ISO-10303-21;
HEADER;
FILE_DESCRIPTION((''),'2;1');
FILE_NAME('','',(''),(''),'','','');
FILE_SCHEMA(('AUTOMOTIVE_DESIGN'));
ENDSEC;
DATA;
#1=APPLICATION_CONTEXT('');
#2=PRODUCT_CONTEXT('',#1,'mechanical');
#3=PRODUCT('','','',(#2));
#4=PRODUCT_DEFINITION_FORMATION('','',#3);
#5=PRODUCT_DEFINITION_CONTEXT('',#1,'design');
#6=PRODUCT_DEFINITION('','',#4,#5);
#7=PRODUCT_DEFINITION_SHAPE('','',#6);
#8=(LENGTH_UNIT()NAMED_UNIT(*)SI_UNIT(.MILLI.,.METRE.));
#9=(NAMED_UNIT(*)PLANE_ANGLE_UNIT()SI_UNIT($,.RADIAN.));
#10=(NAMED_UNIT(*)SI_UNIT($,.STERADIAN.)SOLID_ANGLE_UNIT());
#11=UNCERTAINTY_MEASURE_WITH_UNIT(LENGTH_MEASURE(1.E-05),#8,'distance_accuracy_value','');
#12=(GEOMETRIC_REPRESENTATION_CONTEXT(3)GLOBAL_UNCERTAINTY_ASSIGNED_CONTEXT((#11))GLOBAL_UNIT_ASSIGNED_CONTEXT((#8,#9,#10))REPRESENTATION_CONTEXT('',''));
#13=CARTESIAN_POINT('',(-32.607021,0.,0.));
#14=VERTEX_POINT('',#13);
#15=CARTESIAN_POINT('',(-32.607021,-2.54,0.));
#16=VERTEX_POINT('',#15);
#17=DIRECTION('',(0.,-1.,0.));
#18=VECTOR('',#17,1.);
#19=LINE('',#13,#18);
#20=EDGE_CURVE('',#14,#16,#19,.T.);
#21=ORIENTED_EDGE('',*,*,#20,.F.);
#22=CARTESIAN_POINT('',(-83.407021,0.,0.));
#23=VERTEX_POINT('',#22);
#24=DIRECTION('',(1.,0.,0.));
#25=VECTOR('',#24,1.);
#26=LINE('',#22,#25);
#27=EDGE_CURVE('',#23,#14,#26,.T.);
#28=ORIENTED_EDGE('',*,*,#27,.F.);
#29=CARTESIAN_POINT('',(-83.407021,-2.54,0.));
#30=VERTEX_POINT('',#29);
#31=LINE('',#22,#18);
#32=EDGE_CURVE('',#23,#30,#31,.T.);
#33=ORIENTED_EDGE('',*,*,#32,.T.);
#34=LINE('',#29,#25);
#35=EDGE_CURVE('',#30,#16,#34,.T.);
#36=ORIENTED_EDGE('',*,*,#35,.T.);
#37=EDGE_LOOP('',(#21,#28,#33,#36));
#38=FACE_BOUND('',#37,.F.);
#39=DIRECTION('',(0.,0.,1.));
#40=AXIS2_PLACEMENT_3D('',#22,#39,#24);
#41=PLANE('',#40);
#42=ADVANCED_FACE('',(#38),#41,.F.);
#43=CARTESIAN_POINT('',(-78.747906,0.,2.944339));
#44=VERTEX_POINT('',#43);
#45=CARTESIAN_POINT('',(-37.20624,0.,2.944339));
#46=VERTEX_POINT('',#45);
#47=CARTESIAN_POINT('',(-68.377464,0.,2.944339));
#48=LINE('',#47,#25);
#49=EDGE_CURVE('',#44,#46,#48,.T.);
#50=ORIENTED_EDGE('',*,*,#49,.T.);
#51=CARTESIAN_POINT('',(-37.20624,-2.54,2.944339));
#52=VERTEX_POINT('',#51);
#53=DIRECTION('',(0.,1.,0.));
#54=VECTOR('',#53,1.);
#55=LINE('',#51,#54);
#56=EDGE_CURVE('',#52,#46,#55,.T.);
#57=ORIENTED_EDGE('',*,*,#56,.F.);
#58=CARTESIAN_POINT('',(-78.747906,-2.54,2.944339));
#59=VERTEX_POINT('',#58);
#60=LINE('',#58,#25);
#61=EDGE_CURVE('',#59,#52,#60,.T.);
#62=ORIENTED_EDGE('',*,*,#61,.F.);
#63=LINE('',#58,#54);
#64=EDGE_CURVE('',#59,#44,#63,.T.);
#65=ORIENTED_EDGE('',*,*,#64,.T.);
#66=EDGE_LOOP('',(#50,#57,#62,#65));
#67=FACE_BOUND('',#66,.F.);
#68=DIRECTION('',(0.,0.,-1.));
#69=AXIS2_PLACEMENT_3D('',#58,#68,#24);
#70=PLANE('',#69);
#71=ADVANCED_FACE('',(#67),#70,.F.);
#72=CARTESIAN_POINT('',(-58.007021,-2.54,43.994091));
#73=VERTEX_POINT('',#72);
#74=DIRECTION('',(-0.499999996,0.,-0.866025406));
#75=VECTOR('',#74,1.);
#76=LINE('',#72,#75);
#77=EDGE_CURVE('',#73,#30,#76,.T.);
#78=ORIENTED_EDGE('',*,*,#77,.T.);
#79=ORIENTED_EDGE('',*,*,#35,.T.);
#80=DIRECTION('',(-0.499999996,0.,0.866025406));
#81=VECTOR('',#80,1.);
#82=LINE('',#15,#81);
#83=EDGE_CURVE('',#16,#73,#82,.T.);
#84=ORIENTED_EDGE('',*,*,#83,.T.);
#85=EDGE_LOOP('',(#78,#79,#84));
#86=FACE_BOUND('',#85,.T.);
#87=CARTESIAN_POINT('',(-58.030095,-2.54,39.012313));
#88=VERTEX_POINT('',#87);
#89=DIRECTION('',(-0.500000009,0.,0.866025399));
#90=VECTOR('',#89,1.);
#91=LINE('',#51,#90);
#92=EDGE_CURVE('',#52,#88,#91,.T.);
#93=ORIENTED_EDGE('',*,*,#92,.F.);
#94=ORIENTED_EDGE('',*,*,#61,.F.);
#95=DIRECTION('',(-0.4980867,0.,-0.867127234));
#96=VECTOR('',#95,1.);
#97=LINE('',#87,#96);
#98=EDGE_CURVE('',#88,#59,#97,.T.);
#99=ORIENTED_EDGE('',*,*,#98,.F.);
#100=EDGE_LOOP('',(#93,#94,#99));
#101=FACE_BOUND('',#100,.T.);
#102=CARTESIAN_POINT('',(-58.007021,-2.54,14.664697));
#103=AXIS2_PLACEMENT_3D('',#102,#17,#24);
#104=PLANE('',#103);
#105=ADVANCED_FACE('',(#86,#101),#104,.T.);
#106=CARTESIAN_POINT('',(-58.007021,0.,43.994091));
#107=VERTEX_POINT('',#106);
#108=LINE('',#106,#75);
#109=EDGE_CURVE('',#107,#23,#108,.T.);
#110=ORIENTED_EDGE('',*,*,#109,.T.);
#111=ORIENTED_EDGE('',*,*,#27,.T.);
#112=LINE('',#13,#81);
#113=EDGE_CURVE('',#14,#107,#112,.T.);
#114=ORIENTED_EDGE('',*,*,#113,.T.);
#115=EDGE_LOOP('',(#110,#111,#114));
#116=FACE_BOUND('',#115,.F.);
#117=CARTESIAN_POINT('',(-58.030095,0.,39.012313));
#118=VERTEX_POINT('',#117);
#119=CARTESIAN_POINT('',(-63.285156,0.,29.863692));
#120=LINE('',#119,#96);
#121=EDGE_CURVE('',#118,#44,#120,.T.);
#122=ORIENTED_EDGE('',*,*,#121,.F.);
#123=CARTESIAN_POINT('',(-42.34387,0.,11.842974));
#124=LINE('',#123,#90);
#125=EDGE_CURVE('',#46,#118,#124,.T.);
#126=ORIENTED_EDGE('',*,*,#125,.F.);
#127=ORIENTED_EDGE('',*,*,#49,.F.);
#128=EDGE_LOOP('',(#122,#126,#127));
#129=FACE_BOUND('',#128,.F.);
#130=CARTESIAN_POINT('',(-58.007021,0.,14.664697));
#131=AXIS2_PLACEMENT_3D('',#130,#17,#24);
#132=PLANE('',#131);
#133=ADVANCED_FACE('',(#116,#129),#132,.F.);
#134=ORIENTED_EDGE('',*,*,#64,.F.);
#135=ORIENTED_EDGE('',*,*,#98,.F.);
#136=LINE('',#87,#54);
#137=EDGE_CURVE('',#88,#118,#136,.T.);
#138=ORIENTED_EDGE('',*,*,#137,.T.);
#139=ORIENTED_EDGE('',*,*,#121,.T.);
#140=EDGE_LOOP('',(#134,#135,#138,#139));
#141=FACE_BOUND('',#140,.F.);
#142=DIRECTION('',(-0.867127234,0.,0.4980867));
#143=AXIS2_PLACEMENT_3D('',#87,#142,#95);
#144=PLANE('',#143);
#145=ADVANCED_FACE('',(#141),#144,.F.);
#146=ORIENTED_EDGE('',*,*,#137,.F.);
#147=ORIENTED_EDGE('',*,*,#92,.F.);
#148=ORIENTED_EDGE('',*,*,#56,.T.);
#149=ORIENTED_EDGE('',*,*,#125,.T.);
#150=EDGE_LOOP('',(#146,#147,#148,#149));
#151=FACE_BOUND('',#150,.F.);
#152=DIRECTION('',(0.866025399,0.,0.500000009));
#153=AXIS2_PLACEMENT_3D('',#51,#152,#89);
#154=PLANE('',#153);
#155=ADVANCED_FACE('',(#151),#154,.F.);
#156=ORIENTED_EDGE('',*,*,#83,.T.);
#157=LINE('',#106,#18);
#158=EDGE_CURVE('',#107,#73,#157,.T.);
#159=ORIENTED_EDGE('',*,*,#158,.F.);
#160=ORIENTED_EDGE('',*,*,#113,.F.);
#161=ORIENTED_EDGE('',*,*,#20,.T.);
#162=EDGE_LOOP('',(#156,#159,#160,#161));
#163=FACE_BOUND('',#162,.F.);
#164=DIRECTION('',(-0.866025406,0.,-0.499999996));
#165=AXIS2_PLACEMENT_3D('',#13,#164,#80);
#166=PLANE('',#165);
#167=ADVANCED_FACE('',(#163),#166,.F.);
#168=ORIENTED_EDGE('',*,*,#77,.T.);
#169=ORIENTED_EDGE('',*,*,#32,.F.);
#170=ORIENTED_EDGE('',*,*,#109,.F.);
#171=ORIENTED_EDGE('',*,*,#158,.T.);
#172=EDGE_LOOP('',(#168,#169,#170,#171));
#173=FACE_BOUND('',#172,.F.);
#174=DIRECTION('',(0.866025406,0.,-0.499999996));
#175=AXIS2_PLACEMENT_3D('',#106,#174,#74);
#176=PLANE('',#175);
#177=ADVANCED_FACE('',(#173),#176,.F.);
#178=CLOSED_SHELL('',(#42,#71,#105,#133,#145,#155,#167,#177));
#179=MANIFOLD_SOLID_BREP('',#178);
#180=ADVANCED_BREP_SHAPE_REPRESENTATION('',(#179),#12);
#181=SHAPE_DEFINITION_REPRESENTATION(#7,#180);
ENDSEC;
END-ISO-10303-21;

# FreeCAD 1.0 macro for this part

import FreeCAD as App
import Part
import Sketcher
Q = App.Units.Quantity

doc = App.newDocument("Part")
params = doc.addObject("Spreadsheet::Sheet", "Params")
for row, (alias, value) in enumerate([
    ("sketch1_width", "2 in"),
    ("sketch1_length", "2 in"),
    ("pad1_length", "0.1 in"),
    ("pocket1_length", "1 in"),
], start=1):
    params.set(f"A{row}", alias)
    params.set(f"B{row}", "=" + value)
    params.setAlias(f"B{row}", alias)

body = doc.addObject("PartDesign::Body", "Body")

sketch1 = body.newObject("Sketcher::SketchObject", "Sketch")
sketch1.AttachmentSupport = (doc.getObject("XZ_Plane"), [""])
sketch1.MapMode = "FlatFace"
sketch1.addGeometry(Part.LineSegment(App.Vector(-58, 44, 0), App.Vector(-83, 0, 0)), False)
sketch1.addGeometry(Part.LineSegment(App.Vector(-83, 0, 0), App.Vector(-33, 0, 0)), False)
sketch1.addGeometry(Part.LineSegment(App.Vector(-33, 0, 0), App.Vector(-58, 44, 0)), False)
sketch1.addConstraint(Sketcher.Constraint("Coincident", 0, 2, 1, 1))
sketch1.addConstraint(Sketcher.Constraint("Coincident", 1, 2, 2, 1))
sketch1.addConstraint(Sketcher.Constraint("Coincident", 2, 2, 0, 1))
sketch1.addConstraint(Sketcher.Constraint("Horizontal", 1))
sketch1.addConstraint(Sketcher.Constraint("PointOnObject", 0, 2, -1))
sketch1.addConstraint(Sketcher.Constraint("Equal", 0, 2))
sketch1.addConstraint(Sketcher.Constraint("DistanceX", 1, 1, 1, 2, Q("2 in")))
sketch1.addConstraint(Sketcher.Constraint("Distance", 0, Q("2 in")))
sketch1.addConstraint(Sketcher.Constraint("DistanceX", 0, 2, -1, 1, Q("83.407021 mm")))
sketch1.setExpression("Constraints[6]", "Params.sketch1_width")
sketch1.setExpression("Constraints[7]", "Params.sketch1_length")
pad1 = body.newObject("PartDesign::Pad", "Pad")
pad1.Profile = sketch1
pad1.setExpression("Length", "Params.pad1_length")

sketch2 = body.newObject("Sketcher::SketchObject", "Sketch001")
sketch2.AttachmentSupport = (doc.getObject("XZ_Plane"), [""])
sketch2.MapMode = "FlatFace"
sketch2.AttachmentOffset = App.Placement(App.Vector(0, 0, 0.1 * 25.4), App.Rotation())
sketch2.addGeometry(Part.LineSegment(App.Vector(-37, 3, 0), App.Vector(-58, 39, 0)), False)
sketch2.addGeometry(Part.LineSegment(App.Vector(-58, 39, 0), App.Vector(-79, 3, 0)), False)
sketch2.addGeometry(Part.LineSegment(App.Vector(-79, 3, 0), App.Vector(-37, 3, 0)), False)
sketch2.addConstraint(Sketcher.Constraint("Coincident", 0, 2, 1, 1))
sketch2.addConstraint(Sketcher.Constraint("Coincident", 1, 2, 2, 1))
sketch2.addConstraint(Sketcher.Constraint("Coincident", 2, 2, 0, 1))
sketch2.addConstraint(Sketcher.Constraint("Horizontal", 2))
sketch2.addConstraint(Sketcher.Constraint("Angle", 0, Q("120.000001 deg")))
sketch2.addConstraint(Sketcher.Constraint("Distance", 0, Q("41.647709 mm")))
sketch2.addConstraint(Sketcher.Constraint("Distance", 1, Q("41.594789 mm")))
sketch2.addConstraint(Sketcher.Constraint("DistanceY", -1, 1, 1, 2, Q("2.944339 mm")))
sketch2.addConstraint(Sketcher.Constraint("DistanceX", 2, 2, -1, 1, Q("37.20624 mm")))
pocket1 = body.newObject("PartDesign::Pocket", "Pocket")
pocket1.Profile = sketch2
pocket1.setExpression("Length", "Params.pocket1_length")

doc.recompute()
